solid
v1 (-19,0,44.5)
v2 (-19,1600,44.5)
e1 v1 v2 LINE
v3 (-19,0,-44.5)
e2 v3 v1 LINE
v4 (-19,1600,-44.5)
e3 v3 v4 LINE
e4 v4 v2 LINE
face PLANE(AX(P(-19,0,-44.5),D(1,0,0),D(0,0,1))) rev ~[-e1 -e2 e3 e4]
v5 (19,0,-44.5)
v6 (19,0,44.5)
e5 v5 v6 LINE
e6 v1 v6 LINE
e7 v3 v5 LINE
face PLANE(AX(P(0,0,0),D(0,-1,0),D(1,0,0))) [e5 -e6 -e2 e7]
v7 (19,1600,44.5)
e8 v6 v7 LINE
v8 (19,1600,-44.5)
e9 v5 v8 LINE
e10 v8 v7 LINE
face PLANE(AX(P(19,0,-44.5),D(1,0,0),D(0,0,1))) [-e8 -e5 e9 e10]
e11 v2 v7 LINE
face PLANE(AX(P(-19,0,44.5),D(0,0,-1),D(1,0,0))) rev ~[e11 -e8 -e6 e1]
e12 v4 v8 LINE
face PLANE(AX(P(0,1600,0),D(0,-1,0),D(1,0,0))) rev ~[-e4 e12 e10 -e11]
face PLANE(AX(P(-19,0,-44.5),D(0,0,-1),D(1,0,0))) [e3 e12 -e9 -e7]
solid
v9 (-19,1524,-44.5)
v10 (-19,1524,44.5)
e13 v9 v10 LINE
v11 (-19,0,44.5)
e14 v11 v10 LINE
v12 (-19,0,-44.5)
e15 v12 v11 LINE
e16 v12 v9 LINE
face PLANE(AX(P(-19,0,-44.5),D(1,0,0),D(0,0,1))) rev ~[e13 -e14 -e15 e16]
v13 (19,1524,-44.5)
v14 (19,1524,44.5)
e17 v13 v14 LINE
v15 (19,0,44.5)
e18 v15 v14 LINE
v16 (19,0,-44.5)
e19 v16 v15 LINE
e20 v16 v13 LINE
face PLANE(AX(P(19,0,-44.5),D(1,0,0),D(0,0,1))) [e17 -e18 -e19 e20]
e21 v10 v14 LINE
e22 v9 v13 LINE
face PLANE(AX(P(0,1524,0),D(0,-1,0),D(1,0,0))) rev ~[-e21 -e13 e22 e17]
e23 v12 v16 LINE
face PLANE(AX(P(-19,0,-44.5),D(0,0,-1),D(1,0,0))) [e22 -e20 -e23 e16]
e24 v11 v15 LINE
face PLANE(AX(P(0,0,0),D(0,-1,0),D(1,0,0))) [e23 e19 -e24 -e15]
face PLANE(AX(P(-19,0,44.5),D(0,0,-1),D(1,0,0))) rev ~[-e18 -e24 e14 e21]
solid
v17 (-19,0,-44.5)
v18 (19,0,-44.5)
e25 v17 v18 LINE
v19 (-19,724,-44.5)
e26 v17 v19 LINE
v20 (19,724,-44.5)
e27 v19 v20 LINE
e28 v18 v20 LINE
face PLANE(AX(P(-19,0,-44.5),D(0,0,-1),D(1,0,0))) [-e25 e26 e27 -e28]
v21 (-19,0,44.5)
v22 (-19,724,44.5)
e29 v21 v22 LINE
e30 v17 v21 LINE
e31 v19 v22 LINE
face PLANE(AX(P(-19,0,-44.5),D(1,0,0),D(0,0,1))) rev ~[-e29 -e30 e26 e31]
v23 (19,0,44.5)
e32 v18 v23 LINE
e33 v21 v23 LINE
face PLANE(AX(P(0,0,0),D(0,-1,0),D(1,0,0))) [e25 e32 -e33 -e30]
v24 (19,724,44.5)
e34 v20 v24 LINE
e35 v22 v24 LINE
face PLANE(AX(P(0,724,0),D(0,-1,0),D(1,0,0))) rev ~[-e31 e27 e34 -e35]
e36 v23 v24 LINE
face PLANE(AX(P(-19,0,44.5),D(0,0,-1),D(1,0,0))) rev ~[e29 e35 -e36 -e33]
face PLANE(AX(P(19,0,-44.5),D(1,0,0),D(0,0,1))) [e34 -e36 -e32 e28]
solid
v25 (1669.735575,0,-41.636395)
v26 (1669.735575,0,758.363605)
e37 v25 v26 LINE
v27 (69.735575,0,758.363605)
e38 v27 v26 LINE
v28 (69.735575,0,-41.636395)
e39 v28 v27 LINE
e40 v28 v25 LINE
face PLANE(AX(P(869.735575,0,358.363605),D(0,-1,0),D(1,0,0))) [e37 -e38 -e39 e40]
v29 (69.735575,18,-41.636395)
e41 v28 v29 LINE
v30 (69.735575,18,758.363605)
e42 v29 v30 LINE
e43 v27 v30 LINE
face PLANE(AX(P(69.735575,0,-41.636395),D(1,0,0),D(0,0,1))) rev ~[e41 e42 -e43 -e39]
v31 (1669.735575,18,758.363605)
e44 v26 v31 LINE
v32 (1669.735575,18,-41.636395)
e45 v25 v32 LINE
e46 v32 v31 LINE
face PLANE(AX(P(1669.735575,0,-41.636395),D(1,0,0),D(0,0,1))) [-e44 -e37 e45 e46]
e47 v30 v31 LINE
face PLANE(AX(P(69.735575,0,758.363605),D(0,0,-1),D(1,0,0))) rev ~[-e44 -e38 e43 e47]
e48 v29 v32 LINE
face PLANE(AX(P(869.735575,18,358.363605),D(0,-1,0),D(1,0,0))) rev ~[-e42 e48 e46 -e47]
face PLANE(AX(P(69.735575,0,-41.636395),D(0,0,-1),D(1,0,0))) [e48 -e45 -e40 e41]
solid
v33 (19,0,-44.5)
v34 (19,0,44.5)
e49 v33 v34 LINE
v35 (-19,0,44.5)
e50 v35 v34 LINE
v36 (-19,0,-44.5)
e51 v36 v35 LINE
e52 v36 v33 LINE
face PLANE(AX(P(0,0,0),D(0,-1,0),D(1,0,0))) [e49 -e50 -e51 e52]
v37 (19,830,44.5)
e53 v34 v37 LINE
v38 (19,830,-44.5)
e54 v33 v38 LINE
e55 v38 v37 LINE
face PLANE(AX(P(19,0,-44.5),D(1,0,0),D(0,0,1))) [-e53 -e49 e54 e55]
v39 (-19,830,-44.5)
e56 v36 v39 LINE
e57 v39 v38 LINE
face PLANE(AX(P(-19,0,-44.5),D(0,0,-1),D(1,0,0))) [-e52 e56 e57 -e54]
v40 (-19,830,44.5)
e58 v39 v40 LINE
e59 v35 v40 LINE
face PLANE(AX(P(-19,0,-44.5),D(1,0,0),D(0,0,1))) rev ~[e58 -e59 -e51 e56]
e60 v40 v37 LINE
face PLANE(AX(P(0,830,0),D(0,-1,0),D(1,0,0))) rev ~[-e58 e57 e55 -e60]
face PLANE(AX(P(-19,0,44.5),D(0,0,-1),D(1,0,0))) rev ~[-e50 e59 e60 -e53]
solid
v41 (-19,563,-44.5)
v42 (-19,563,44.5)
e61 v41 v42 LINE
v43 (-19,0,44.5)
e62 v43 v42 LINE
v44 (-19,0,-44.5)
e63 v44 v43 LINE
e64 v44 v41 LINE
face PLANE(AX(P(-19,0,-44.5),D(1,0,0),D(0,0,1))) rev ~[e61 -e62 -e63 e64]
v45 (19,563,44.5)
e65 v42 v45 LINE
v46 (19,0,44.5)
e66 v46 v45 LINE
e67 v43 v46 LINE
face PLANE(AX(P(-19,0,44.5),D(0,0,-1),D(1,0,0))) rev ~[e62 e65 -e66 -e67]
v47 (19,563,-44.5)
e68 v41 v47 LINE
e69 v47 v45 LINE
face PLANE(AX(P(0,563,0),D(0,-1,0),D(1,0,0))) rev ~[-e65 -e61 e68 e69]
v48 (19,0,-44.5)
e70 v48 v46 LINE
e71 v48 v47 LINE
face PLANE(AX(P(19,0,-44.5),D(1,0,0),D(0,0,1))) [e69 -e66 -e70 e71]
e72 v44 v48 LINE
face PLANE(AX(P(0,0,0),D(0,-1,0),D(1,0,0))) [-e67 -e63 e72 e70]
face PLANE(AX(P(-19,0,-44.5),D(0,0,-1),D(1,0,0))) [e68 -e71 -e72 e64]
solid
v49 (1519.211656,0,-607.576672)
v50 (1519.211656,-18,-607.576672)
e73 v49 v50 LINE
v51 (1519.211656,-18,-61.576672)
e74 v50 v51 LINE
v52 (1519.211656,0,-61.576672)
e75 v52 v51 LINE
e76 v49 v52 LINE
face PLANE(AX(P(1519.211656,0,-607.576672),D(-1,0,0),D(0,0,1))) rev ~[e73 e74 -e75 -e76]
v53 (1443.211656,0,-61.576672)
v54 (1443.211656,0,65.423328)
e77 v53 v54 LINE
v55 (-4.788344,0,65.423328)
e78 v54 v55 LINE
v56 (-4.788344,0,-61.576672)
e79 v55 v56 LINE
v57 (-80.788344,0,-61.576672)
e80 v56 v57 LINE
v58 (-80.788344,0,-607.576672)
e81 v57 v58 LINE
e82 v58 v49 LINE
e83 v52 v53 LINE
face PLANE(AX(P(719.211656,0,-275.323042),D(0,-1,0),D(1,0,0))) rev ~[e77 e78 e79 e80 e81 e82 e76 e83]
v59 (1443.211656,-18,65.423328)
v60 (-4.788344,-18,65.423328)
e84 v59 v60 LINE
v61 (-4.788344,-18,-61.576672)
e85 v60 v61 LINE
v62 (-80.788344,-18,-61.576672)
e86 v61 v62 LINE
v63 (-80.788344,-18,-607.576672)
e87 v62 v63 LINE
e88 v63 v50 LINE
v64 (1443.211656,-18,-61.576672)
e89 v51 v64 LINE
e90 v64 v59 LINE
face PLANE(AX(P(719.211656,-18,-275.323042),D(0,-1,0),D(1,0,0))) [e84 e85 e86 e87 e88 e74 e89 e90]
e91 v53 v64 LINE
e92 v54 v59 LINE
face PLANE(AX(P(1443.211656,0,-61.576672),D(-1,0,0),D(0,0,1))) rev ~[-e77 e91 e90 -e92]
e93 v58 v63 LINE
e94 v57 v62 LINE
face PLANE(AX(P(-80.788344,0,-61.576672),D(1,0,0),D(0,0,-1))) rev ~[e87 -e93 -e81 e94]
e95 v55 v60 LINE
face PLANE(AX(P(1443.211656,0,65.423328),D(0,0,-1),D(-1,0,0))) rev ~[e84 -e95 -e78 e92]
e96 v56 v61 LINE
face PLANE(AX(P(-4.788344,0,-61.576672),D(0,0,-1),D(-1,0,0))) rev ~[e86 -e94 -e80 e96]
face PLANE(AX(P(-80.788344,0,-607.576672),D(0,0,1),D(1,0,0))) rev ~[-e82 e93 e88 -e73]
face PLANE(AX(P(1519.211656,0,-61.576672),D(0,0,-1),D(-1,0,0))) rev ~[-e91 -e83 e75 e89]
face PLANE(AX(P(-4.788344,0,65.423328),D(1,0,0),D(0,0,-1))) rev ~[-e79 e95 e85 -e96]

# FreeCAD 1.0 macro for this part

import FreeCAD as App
import Part
import Sketcher
from FreeCAD import Vector

doc = App.newDocument("Part")
params = doc.addObject("Spreadsheet::Sheet", "Params")
for row, (alias, value) in enumerate([
    ("sketch1_width", "38 mm"),
    ("sketch1_height", "89 mm"),
    ("pad1_length", "1600 mm"),
    ("sketch2_width", "38 mm"),
    ("sketch2_height", "89 mm"),
    ("pad2_length", "724 mm"),
    ("sketch3_width", "38 mm"),
    ("sketch3_height", "89 mm"),
    ("pad3_length", "830 mm"),
    ("sketch4_width", "38 mm"),
    ("sketch4_height", "89 mm"),
    ("pad4_length", "563 mm"),
    ("sketch5_width", "1600 mm"),
    ("sketch5_height", "800 mm"),
    ("pad5_length", "18 mm"),
    ("sketch6_width", "38 mm"),
    ("sketch6_height", "89 mm"),
    ("pad6_length", "1524 mm"),
    ("sketch7_width", "1448 mm"),
    ("sketch7_width2", "76 mm"),
    ("sketch7_height", "127 mm"),
    ("sketch7_height2", "546 mm"),
    ("pad7_length", "18 mm"),
], start=1):
    params.set(f"A{row}", alias)
    params.set(f"B{row}", "=" + value)
    params.setAlias(f"B{row}", alias)

body = doc.addObject("PartDesign::Body", "Body")

# Sketch on XZ plane
sketch1 = body.newObject("Sketcher::SketchObject", "Sketch")
sketch1.AttachmentSupport = (doc.getObject("XZ_Plane"), [""])
sketch1.MapMode = "FlatFace"
sketch1.addGeometry([
    Part.LineSegment(Vector(-19, 44.5, 0), Vector(-19, -44.5, 0)),
    Part.LineSegment(Vector(-19, -44.5, 0), Vector(19, -44.5, 0)),
    Part.LineSegment(Vector(19, -44.5, 0), Vector(19, 44.5, 0)),
    Part.LineSegment(Vector(19, 44.5, 0), Vector(-19, 44.5, 0)),
], False)
sketch1.addConstraint([
    Sketcher.Constraint("Coincident", 0, 2, 1, 1),
    Sketcher.Constraint("Coincident", 1, 2, 2, 1),
    Sketcher.Constraint("Coincident", 2, 2, 3, 1),
    Sketcher.Constraint("Coincident", 3, 2, 0, 1),
    Sketcher.Constraint("Vertical", 0),
    Sketcher.Constraint("Horizontal", 1),
    Sketcher.Constraint("Vertical", 2),
    Sketcher.Constraint("Horizontal", 3),
    Sketcher.Constraint("Symmetric", 0, 2, 2, 2, -1, 1),
    Sketcher.Constraint("DistanceX", 1, 1, 1, 2, 38.0),
    Sketcher.Constraint("DistanceY", 0, 2, 0, 1, 89.0),
])
sketch1.setExpression("Constraints[9]", "Params.sketch1_width")
sketch1.setExpression("Constraints[10]", "Params.sketch1_height")
pad1 = body.newObject("PartDesign::Pad", "Pad")
pad1.Profile = sketch1
pad1.setExpression("Length", "Params.pad1_length")
pad1.Reversed = True
body2 = doc.addObject("PartDesign::Body", "Body001")

# Sketch on XZ plane
sketch2 = body2.newObject("Sketcher::SketchObject", "Sketch001")
sketch2.AttachmentSupport = (doc.getObject("XZ_Plane001"), [""])
sketch2.MapMode = "FlatFace"
sketch2.addGeometry([
    Part.LineSegment(Vector(-19, 44.5, 0), Vector(-19, -44.5, 0)),
    Part.LineSegment(Vector(-19, -44.5, 0), Vector(19, -44.5, 0)),
    Part.LineSegment(Vector(19, -44.5, 0), Vector(19, 44.5, 0)),
    Part.LineSegment(Vector(19, 44.5, 0), Vector(-19, 44.5, 0)),
], False)
sketch2.addConstraint([
    Sketcher.Constraint("Coincident", 0, 2, 1, 1),
    Sketcher.Constraint("Coincident", 1, 2, 2, 1),
    Sketcher.Constraint("Coincident", 2, 2, 3, 1),
    Sketcher.Constraint("Coincident", 3, 2, 0, 1),
    Sketcher.Constraint("Vertical", 0),
    Sketcher.Constraint("Horizontal", 1),
    Sketcher.Constraint("Vertical", 2),
    Sketcher.Constraint("Horizontal", 3),
    Sketcher.Constraint("Symmetric", 0, 2, 2, 2, -1, 1),
    Sketcher.Constraint("DistanceX", 1, 1, 1, 2, 38.0),
    Sketcher.Constraint("DistanceY", 0, 2, 0, 1, 89.0),
])
sketch2.setExpression("Constraints[9]", "Params.sketch2_width")
sketch2.setExpression("Constraints[10]", "Params.sketch2_height")
pad2 = body2.newObject("PartDesign::Pad", "Pad001")
pad2.Profile = sketch2
pad2.setExpression("Length", "Params.pad2_length")
pad2.Reversed = True
body3 = doc.addObject("PartDesign::Body", "Body002")

# Sketch on XZ plane
sketch3 = body3.newObject("Sketcher::SketchObject", "Sketch002")
sketch3.AttachmentSupport = (doc.getObject("XZ_Plane002"), [""])
sketch3.MapMode = "FlatFace"
sketch3.addGeometry([
    Part.LineSegment(Vector(-19, 44.5, 0), Vector(-19, -44.5, 0)),
    Part.LineSegment(Vector(-19, -44.5, 0), Vector(19, -44.5, 0)),
    Part.LineSegment(Vector(19, -44.5, 0), Vector(19, 44.5, 0)),
    Part.LineSegment(Vector(19, 44.5, 0), Vector(-19, 44.5, 0)),
], False)
sketch3.addConstraint([
    Sketcher.Constraint("Coincident", 0, 2, 1, 1),
    Sketcher.Constraint("Coincident", 1, 2, 2, 1),
    Sketcher.Constraint("Coincident", 2, 2, 3, 1),
    Sketcher.Constraint("Coincident", 3, 2, 0, 1),
    Sketcher.Constraint("Vertical", 0),
    Sketcher.Constraint("Horizontal", 1),
    Sketcher.Constraint("Vertical", 2),
    Sketcher.Constraint("Horizontal", 3),
    Sketcher.Constraint("Symmetric", 0, 2, 2, 2, -1, 1),
    Sketcher.Constraint("DistanceX", 1, 1, 1, 2, 38.0),
    Sketcher.Constraint("DistanceY", 0, 2, 0, 1, 89.0),
])
sketch3.setExpression("Constraints[9]", "Params.sketch3_width")
sketch3.setExpression("Constraints[10]", "Params.sketch3_height")
pad3 = body3.newObject("PartDesign::Pad", "Pad002")
pad3.Profile = sketch3
pad3.setExpression("Length", "Params.pad3_length")
pad3.Reversed = True
body4 = doc.addObject("PartDesign::Body", "Body003")

# Sketch on XZ plane
sketch4 = body4.newObject("Sketcher::SketchObject", "Sketch003")
sketch4.AttachmentSupport = (doc.getObject("XZ_Plane003"), [""])
sketch4.MapMode = "FlatFace"
sketch4.addGeometry([
    Part.LineSegment(Vector(-19, 44.5, 0), Vector(-19, -44.5, 0)),
    Part.LineSegment(Vector(-19, -44.5, 0), Vector(19, -44.5, 0)),
    Part.LineSegment(Vector(19, -44.5, 0), Vector(19, 44.5, 0)),
    Part.LineSegment(Vector(19, 44.5, 0), Vector(-19, 44.5, 0)),
], False)
sketch4.addConstraint([
    Sketcher.Constraint("Coincident", 0, 2, 1, 1),
    Sketcher.Constraint("Coincident", 1, 2, 2, 1),
    Sketcher.Constraint("Coincident", 2, 2, 3, 1),
    Sketcher.Constraint("Coincident", 3, 2, 0, 1),
    Sketcher.Constraint("Vertical", 0),
    Sketcher.Constraint("Horizontal", 1),
    Sketcher.Constraint("Vertical", 2),
    Sketcher.Constraint("Horizontal", 3),
    Sketcher.Constraint("Symmetric", 0, 2, 2, 2, -1, 1),
    Sketcher.Constraint("DistanceX", 1, 1, 1, 2, 38.0),
    Sketcher.Constraint("DistanceY", 0, 2, 0, 1, 89.0),
])
sketch4.setExpression("Constraints[9]", "Params.sketch4_width")
sketch4.setExpression("Constraints[10]", "Params.sketch4_height")
pad4 = body4.newObject("PartDesign::Pad", "Pad003")
pad4.Profile = sketch4
pad4.setExpression("Length", "Params.pad4_length")
pad4.Reversed = True
body5 = doc.addObject("PartDesign::Body", "Body004")

# Sketch on XZ plane
sketch5 = body5.newObject("Sketcher::SketchObject", "Sketch004")
sketch5.AttachmentSupport = (doc.getObject("XZ_Plane004"), [""])
sketch5.MapMode = "FlatFace"
sketch5.addGeometry([
    Part.LineSegment(Vector(69.735575, 758.363605, 0), Vector(69.735575, -41.636395, 0)),
    Part.LineSegment(Vector(69.735575, -41.636395, 0), Vector(1669.735575, -41.636395, 0)),
    Part.LineSegment(Vector(1669.735575, -41.636395, 0), Vector(1669.735575, 758.363605, 0)),
    Part.LineSegment(Vector(1669.735575, 758.363605, 0), Vector(69.735575, 758.363605, 0)),
], False)
sketch5.addConstraint([
    Sketcher.Constraint("Coincident", 0, 2, 1, 1),
    Sketcher.Constraint("Coincident", 1, 2, 2, 1),
    Sketcher.Constraint("Coincident", 2, 2, 3, 1),
    Sketcher.Constraint("Coincident", 3, 2, 0, 1),
    Sketcher.Constraint("Vertical", 0),
    Sketcher.Constraint("Horizontal", 1),
    Sketcher.Constraint("Vertical", 2),
    Sketcher.Constraint("Horizontal", 3),
    Sketcher.Constraint("DistanceX", 1, 1, 1, 2, 1600.0),
    Sketcher.Constraint("DistanceY", 0, 2, 0, 1, 800.0),
    Sketcher.Constraint("DistanceX", -1, 1, 0, 2, 69.735575),
    Sketcher.Constraint("DistanceY", 0, 2, -1, 1, 41.636395),
])
sketch5.setExpression("Constraints[8]", "Params.sketch5_width")
sketch5.setExpression("Constraints[9]", "Params.sketch5_height")
pad5 = body5.newObject("PartDesign::Pad", "Pad004")
pad5.Profile = sketch5
pad5.setExpression("Length", "Params.pad5_length")
pad5.Reversed = True
body6 = doc.addObject("PartDesign::Body", "Body005")

# Sketch on XZ plane
sketch6 = body6.newObject("Sketcher::SketchObject", "Sketch005")
sketch6.AttachmentSupport = (doc.getObject("XZ_Plane005"), [""])
sketch6.MapMode = "FlatFace"
sketch6.addGeometry([
    Part.LineSegment(Vector(-19, 44.5, 0), Vector(-19, -44.5, 0)),
    Part.LineSegment(Vector(-19, -44.5, 0), Vector(19, -44.5, 0)),
    Part.LineSegment(Vector(19, -44.5, 0), Vector(19, 44.5, 0)),
    Part.LineSegment(Vector(19, 44.5, 0), Vector(-19, 44.5, 0)),
], False)
sketch6.addConstraint([
    Sketcher.Constraint("Coincident", 0, 2, 1, 1),
    Sketcher.Constraint("Coincident", 1, 2, 2, 1),
    Sketcher.Constraint("Coincident", 2, 2, 3, 1),
    Sketcher.Constraint("Coincident", 3, 2, 0, 1),
    Sketcher.Constraint("Vertical", 0),
    Sketcher.Constraint("Horizontal", 1),
    Sketcher.Constraint("Vertical", 2),
    Sketcher.Constraint("Horizontal", 3),
    Sketcher.Constraint("Symmetric", 0, 2, 2, 2, -1, 1),
    Sketcher.Constraint("DistanceX", 1, 1, 1, 2, 38.0),
    Sketcher.Constraint("DistanceY", 0, 2, 0, 1, 89.0),
])
sketch6.setExpression("Constraints[9]", "Params.sketch6_width")
sketch6.setExpression("Constraints[10]", "Params.sketch6_height")
pad6 = body6.newObject("PartDesign::Pad", "Pad005")
pad6.Profile = sketch6
pad6.setExpression("Length", "Params.pad6_length")
pad6.Reversed = True
body7 = doc.addObject("PartDesign::Body", "Body006")

# Sketch on XZ plane
sketch7 = body7.newObject("Sketcher::SketchObject", "Sketch006")
sketch7.AttachmentSupport = (doc.getObject("XZ_Plane006"), [""])
sketch7.MapMode = "FlatFace"
sketch7.addGeometry([
    Part.LineSegment(Vector(1443.211656, 65.423328, 0), Vector(-4.788344, 65.423328, 0)),  # 0
    Part.LineSegment(Vector(-4.788344, 65.423328, 0), Vector(-4.788344, -61.576672, 0)),  # 1
    Part.LineSegment(Vector(-4.788344, -61.576672, 0), Vector(-80.788344, -61.576672, 0)),  # 2
    Part.LineSegment(Vector(-80.788344, -61.576672, 0), Vector(-80.788344, -607.576672, 0)),  # 3
    Part.LineSegment(Vector(-80.788344, -607.576672, 0), Vector(1519.211656, -607.576672, 0)),  # 4
    Part.LineSegment(Vector(1519.211656, -607.576672, 0), Vector(1519.211656, -61.576672, 0)),  # 5
    Part.LineSegment(Vector(1519.211656, -61.576672, 0), Vector(1443.211656, -61.576672, 0)),  # 6
    Part.LineSegment(Vector(1443.211656, -61.576672, 0), Vector(1443.211656, 65.423328, 0)),  # 7
], False)
sketch7.addConstraint([
    Sketcher.Constraint("Coincident", 0, 2, 1, 1),
    Sketcher.Constraint("Coincident", 1, 2, 2, 1),
    Sketcher.Constraint("Coincident", 2, 2, 3, 1),
    Sketcher.Constraint("Coincident", 3, 2, 4, 1),
    Sketcher.Constraint("Coincident", 4, 2, 5, 1),
    Sketcher.Constraint("Coincident", 5, 2, 6, 1),
    Sketcher.Constraint("Coincident", 6, 2, 7, 1),
    Sketcher.Constraint("Coincident", 7, 2, 0, 1),
    Sketcher.Constraint("Horizontal", 0),
    Sketcher.Constraint("Vertical", 1),
    Sketcher.Constraint("Horizontal", 2),
    Sketcher.Constraint("Vertical", 3),
    Sketcher.Constraint("Horizontal", 4),
    Sketcher.Constraint("Vertical", 5),
    Sketcher.Constraint("Horizontal", 6),
    Sketcher.Constraint("Vertical", 7),
    Sketcher.Constraint("Horizontal", 2, 2, 5, 2),
    Sketcher.Constraint("Equal", 2, 6),
    Sketcher.Constraint("DistanceX", 0, 2, 0, 1, 1448.0),
    Sketcher.Constraint("DistanceX", 2, 2, 2, 1, 76.0),
    Sketcher.Constraint("DistanceY", 1, 2, 1, 1, 127.0),
    Sketcher.Constraint("DistanceY", 3, 2, 3, 1, 546.0),
    Sketcher.Constraint("DistanceX", 0, 2, -1, 1, 4.788344),
    Sketcher.Constraint("DistanceY", -1, 1, 0, 2, 65.423328),
])
sketch7.setExpression("Constraints[18]", "Params.sketch7_width")
sketch7.setExpression("Constraints[19]", "Params.sketch7_width2")
sketch7.setExpression("Constraints[20]", "Params.sketch7_height")
sketch7.setExpression("Constraints[21]", "Params.sketch7_height2")
pad7 = body7.newObject("PartDesign::Pad", "Pad006")
pad7.Profile = sketch7
pad7.setExpression("Length", "Params.pad7_length")

doc.recompute()
